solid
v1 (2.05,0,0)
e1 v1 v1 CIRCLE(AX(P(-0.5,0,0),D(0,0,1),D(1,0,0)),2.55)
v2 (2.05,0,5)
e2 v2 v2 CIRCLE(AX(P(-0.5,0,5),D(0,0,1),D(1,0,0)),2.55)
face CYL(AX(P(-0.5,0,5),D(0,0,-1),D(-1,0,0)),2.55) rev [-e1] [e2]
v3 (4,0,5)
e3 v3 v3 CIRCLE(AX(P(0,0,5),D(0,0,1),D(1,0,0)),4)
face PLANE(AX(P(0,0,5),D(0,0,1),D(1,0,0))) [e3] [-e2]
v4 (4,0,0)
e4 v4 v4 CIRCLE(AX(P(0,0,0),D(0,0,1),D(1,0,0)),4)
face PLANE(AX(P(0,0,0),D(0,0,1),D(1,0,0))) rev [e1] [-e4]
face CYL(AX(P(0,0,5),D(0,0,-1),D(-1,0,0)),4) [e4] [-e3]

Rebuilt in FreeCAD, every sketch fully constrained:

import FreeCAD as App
import Part
import Sketcher

V = App.Vector
Q = App.Units.Quantity

doc = App.newDocument("Part")
body = doc.addObject("PartDesign::Body", "Body")

# Sketch on XY plane
sketch1 = body.newObject("Sketcher::SketchObject", "Sketch")
sketch1.AttachmentSupport = (doc.getObject("XY_Plane"), [""])
sketch1.MapMode = "FlatFace"
sketch1.addGeometry([
    Part.Circle(V(0, 0, 0), V(0, 0, 1), 4),
    Part.Circle(V(-0.5, 0, 0), V(0, 0, 1), 2.5),
], False)
sketch1.addConstraint([
    Sketcher.Constraint("Coincident", 0, 3, -1, 1),
    Sketcher.Constraint("PointOnObject", 1, 3, -1),
    Sketcher.Constraint("Diameter", 0, Q("8 mm")),
    Sketcher.Constraint("Diameter", 1, Q("5.1 mm")),
    Sketcher.Constraint("DistanceX", 1, 3, -1, 1, Q("0.5 mm")),
])
pad1 = body.newObject("PartDesign::Pad", "Pad")
pad1.Profile = sketch1
pad1.Length = 5

doc.recompute()
